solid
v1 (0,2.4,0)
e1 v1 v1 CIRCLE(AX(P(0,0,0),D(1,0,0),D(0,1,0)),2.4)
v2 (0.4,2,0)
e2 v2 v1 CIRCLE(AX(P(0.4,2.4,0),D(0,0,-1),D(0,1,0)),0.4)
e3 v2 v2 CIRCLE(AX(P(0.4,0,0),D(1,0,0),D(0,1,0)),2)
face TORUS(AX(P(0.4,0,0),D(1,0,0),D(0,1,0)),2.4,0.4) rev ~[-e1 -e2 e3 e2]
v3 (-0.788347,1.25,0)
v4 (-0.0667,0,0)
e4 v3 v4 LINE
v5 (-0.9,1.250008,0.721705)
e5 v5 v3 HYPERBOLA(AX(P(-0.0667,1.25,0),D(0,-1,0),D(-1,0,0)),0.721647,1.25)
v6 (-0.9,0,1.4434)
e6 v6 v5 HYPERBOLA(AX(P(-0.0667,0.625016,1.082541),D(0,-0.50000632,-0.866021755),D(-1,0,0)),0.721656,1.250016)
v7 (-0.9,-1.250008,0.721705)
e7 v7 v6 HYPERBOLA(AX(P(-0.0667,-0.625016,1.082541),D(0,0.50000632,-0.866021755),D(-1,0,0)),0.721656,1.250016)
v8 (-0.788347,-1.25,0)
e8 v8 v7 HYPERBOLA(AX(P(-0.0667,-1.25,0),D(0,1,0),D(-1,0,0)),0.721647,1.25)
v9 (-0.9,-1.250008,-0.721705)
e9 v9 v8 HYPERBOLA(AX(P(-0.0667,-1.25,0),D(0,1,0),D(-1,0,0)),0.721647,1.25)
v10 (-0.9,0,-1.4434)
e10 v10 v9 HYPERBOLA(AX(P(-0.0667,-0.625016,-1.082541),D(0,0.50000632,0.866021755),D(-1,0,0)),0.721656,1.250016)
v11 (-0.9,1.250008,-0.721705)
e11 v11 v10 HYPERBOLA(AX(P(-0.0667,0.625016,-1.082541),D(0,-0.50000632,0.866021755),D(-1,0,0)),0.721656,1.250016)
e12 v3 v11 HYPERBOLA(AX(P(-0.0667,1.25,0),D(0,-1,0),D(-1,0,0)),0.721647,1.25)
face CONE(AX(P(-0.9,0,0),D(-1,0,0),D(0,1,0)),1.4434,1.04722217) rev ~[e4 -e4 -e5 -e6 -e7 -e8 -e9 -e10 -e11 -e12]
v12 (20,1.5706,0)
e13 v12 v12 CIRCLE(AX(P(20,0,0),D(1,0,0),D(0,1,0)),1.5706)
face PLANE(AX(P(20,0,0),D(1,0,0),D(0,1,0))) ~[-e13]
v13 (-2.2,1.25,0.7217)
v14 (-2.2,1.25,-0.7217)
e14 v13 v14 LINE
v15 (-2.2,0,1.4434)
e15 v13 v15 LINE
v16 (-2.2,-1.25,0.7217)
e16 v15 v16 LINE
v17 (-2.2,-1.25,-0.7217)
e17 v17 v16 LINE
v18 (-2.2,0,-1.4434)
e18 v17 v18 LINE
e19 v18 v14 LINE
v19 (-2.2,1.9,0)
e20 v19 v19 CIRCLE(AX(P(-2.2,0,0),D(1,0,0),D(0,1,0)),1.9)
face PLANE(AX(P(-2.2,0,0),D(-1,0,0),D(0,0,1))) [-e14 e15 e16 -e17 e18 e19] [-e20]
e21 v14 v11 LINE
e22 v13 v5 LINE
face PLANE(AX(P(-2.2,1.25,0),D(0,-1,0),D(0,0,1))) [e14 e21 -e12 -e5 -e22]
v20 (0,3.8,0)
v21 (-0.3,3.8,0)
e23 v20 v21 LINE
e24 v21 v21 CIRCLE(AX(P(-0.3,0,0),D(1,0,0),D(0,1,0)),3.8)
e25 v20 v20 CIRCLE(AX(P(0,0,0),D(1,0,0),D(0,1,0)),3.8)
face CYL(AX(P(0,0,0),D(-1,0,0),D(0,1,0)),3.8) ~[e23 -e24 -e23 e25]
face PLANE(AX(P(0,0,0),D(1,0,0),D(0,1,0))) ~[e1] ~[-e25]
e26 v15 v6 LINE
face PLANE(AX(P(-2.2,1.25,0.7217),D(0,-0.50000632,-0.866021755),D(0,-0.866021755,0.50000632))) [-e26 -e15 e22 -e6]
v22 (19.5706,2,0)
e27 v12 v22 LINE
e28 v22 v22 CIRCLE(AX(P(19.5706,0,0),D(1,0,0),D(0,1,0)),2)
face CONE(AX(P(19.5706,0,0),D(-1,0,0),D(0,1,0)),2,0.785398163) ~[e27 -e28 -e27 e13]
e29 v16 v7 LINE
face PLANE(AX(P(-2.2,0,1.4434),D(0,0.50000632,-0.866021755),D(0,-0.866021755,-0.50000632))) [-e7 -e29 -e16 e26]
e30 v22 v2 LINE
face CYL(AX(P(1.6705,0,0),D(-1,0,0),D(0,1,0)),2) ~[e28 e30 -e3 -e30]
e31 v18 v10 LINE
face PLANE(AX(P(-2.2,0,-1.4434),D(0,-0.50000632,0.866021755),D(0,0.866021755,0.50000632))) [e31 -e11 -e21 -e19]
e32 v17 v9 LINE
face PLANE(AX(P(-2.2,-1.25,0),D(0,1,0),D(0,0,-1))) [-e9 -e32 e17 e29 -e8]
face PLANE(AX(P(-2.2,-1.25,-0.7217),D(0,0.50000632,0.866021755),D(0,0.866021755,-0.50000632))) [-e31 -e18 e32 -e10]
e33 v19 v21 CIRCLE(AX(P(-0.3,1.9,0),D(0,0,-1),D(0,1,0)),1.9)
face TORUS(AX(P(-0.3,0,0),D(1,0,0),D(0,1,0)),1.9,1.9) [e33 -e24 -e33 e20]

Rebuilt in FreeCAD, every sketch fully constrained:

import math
import FreeCAD as App
import Part
import Sketcher
from FreeCAD import Vector
Q = App.Units.Quantity


def edges_at(feature, points):
    """Names of the edges that pass closest to the given points."""
    edges = feature.Shape.Edges
    near = lambda p: min(range(len(edges)), key=lambda i: edges[i].distToShape(Part.Vertex(*p))[0])
    return sorted({f"Edge{near(p) + 1}" for p in points})

doc = App.newDocument("Part")
params = doc.addObject("Spreadsheet::Sheet", "Params")
for row, (alias, value) in enumerate([
    ("sketch1_width", "20 mm"),
    ("sketch1_width2", "2.2 mm"),
    ("sketch1_width3", "1.3 mm"),
    ("sketch1_height", "2 mm"),
    ("sketch1_height2", "1.8 mm"),
    ("revolution_angle", "360 deg"),
    ("fillet_radius", "1.9 mm"),
    ("chamfer_size", "0.4294 mm"),
    ("chamfer_size2", "0.4294 mm"),
    ("fillet2_radius", "0.4 mm"),
], start=1):
    params.set(f"A{row}", alias)
    params.set(f"B{row}", "=" + value)
    params.setAlias(f"B{row}", alias)

body = doc.addObject("PartDesign::Body", "Body")

# Sketch on XY plane
sketch1 = body.newObject("Sketcher::SketchObject", "Sketch")
sketch1.AttachmentSupport = (doc.getObject("XY_Plane"), [""])
sketch1.MapMode = "FlatFace"
sketch1.addGeometry(Part.LineSegment(Vector(-0.9, 1.4434, 0), Vector(-0.0667, 0, 0)), False)
sketch1.addGeometry(Part.LineSegment(Vector(-0.0667, 0, 0), Vector(20, 0, 0)), False)
sketch1.addGeometry(Part.LineSegment(Vector(20, 0, 0), Vector(20, 2, 0)), False)
sketch1.addGeometry(Part.LineSegment(Vector(20, 2, 0), Vector(0, 2, 0)), False)
sketch1.addGeometry(Part.LineSegment(Vector(0, 2, 0), Vector(0, 3.8, 0)), False)
sketch1.addGeometry(Part.LineSegment(Vector(0, 3.8, 0), Vector(-2.2, 3.8, 0)), False)
sketch1.addGeometry(Part.LineSegment(Vector(-2.2, 3.8, 0), Vector(-2.2, 1.4434, 0)), False)
sketch1.addGeometry(Part.LineSegment(Vector(-2.2, 1.4434, 0), Vector(-0.9, 1.4434, 0)), False)
sketch1.addConstraint(Sketcher.Constraint("Coincident", 0, 2, 1, 1))
sketch1.addConstraint(Sketcher.Constraint("Coincident", 1, 2, 2, 1))
sketch1.addConstraint(Sketcher.Constraint("Coincident", 2, 2, 3, 1))
sketch1.addConstraint(Sketcher.Constraint("Coincident", 3, 2, 4, 1))
sketch1.addConstraint(Sketcher.Constraint("Coincident", 4, 2, 5, 1))
sketch1.addConstraint(Sketcher.Constraint("Coincident", 5, 2, 6, 1))
sketch1.addConstraint(Sketcher.Constraint("Coincident", 6, 2, 7, 1))
sketch1.addConstraint(Sketcher.Constraint("Coincident", 7, 2, 0, 1))
sketch1.addConstraint(Sketcher.Constraint("Horizontal", 1))
sketch1.addConstraint(Sketcher.Constraint("Vertical", 2))
sketch1.addConstraint(Sketcher.Constraint("Horizontal", 3))
sketch1.addConstraint(Sketcher.Constraint("Vertical", 4))
sketch1.addConstraint(Sketcher.Constraint("Horizontal", 5))
sketch1.addConstraint(Sketcher.Constraint("Vertical", 6))
sketch1.addConstraint(Sketcher.Constraint("Horizontal", 7))
sketch1.addConstraint(Sketcher.Constraint("PointOnObject", 0, 2, -1))
sketch1.addConstraint(Sketcher.Constraint("PointOnObject", 3, 2, -2))
sketch1.addConstraint(Sketcher.Constraint("DistanceX", 3, 2, 3, 1, 20.0))
sketch1.addConstraint(Sketcher.Constraint("DistanceX", 5, 2, 5, 1, 2.2))
sketch1.addConstraint(Sketcher.Constraint("DistanceX", 7, 1, 7, 2, 1.3))
sketch1.addConstraint(Sketcher.Constraint("DistanceY", 2, 1, 2, 2, 2.0))
sketch1.addConstraint(Sketcher.Constraint("DistanceY", 4, 1, 4, 2, 1.8))
sketch1.addConstraint(Sketcher.Constraint("DistanceX", 1, 1, 1, 2, 20.0667))
sketch1.addConstraint(Sketcher.Constraint("DistanceY", 6, 2, 6, 1, 2.3566))
sketch1.setExpression("Constraints[17]", "Params.sketch1_width")
sketch1.setExpression("Constraints[18]", "Params.sketch1_width2")
sketch1.setExpression("Constraints[19]", "Params.sketch1_width3")
sketch1.setExpression("Constraints[20]", "Params.sketch1_height")
sketch1.setExpression("Constraints[21]", "Params.sketch1_height2")
revolution = body.newObject("PartDesign::Revolution", "Revolution")
revolution.Profile = sketch1
revolution.ReferenceAxis = (sketch1, ["H_Axis"])
revolution.setExpression("Angle", "Params.revolution_angle")

# Sketch on YZ plane
sketch2 = body.newObject("Sketcher::SketchObject", "Sketch001")
sketch2.AttachmentSupport = (doc.getObject("YZ_Plane"), [""])
sketch2.MapMode = "FlatFace"
sketch2.AttachmentOffset = App.Placement(Vector(0, 0, -2.2), App.Rotation())
sketch2.addGeometry(Part.LineSegment(Vector(1.25, 0.7217, 0), Vector(0, 1.4434, 0)), False)
sketch2.addGeometry(Part.ArcOfCircle(Part.Circle(Vector(0, 0, 0), Vector(0, 0, 1), 1.4434), math.radians(30.000418), math.radians(90)), False)
sketch2.addGeometry(Part.ArcOfCircle(Part.Circle(Vector(0, 0, 0), Vector(0, 0, 1), 1.4434), math.radians(90), math.radians(149.999582)), False)
sketch2.addGeometry(Part.LineSegment(Vector(0, 1.4434, 0), Vector(-1.25, 0.7217, 0)), False)
sketch2.addGeometry(Part.ArcOfCircle(Part.Circle(Vector(0, 0, 0), Vector(0, 0, 1), 1.4434), math.radians(-30.000418), math.radians(30.000418)), False)
sketch2.addGeometry(Part.LineSegment(Vector(1.25, 0.7217, 0), Vector(1.25, -0.7217, 0)), False)
sketch2.addGeometry(Part.LineSegment(Vector(-1.25, 0.7217, 0), Vector(-1.25, -0.7217, 0)), False)
sketch2.addGeometry(Part.ArcOfCircle(Part.Circle(Vector(0, 0, 0), Vector(0, 0, 1), 1.4434), math.radians(149.999582), math.radians(210.000418)), False)
sketch2.addGeometry(Part.LineSegment(Vector(-1.25, -0.7217, 0), Vector(0, -1.4434, 0)), False)
sketch2.addGeometry(Part.ArcOfCircle(Part.Circle(Vector(0, 0, 0), Vector(0, 0, 1), 1.4434), math.radians(-149.999582), math.radians(-90)), False)
sketch2.addGeometry(Part.ArcOfCircle(Part.Circle(Vector(0, 0, 0), Vector(0, 0, 1), 1.4434), math.radians(-90), math.radians(-30.000418)), False)
sketch2.addGeometry(Part.LineSegment(Vector(0, -1.4434, 0), Vector(1.25, -0.7217, 0)), False)
sketch2.addConstraint(Sketcher.Constraint("Coincident", 0, 1, 1, 1))
sketch2.addConstraint(Sketcher.Constraint("Coincident", 1, 2, 0, 2))
sketch2.addConstraint(Sketcher.Constraint("Coincident", 2, 1, 3, 1))
sketch2.addConstraint(Sketcher.Constraint("Coincident", 3, 2, 2, 2))
sketch2.addConstraint(Sketcher.Constraint("Coincident", 4, 1, 5, 2))
sketch2.addConstraint(Sketcher.Constraint("Coincident", 5, 1, 4, 2))
sketch2.addConstraint(Sketcher.Constraint("Coincident", 6, 1, 7, 1))
sketch2.addConstraint(Sketcher.Constraint("Coincident", 7, 2, 6, 2))
sketch2.addConstraint(Sketcher.Constraint("Coincident", 8, 1, 9, 1))
sketch2.addConstraint(Sketcher.Constraint("Coincident", 9, 2, 8, 2))
sketch2.addConstraint(Sketcher.Constraint("Coincident", 10, 1, 11, 1))
sketch2.addConstraint(Sketcher.Constraint("Coincident", 11, 2, 10, 2))
sketch2.addConstraint(Sketcher.Constraint("Vertical", 5))
sketch2.addConstraint(Sketcher.Constraint("Vertical", 6))
sketch2.addConstraint(Sketcher.Constraint("Coincident", 1, 3, -1, 1))
sketch2.addConstraint(Sketcher.Constraint("Coincident", 2, 3, -1, 1))
sketch2.addConstraint(Sketcher.Constraint("Coincident", 4, 3, -1, 1))
sketch2.addConstraint(Sketcher.Constraint("Coincident", 7, 3, -1, 1))
sketch2.addConstraint(Sketcher.Constraint("Coincident", 9, 3, -1, 1))
sketch2.addConstraint(Sketcher.Constraint("Coincident", 10, 3, -1, 1))
sketch2.addConstraint(Sketcher.Constraint("Coincident", 2, 1, 1, 2))
sketch2.addConstraint(Sketcher.Constraint("Coincident", 5, 1, 0, 1))
sketch2.addConstraint(Sketcher.Constraint("Coincident", 6, 1, 3, 2))
sketch2.addConstraint(Sketcher.Constraint("Coincident", 8, 1, 7, 2))
sketch2.addConstraint(Sketcher.Constraint("Coincident", 10, 1, 9, 2))
sketch2.addConstraint(Sketcher.Constraint("PointOnObject", 1, 2, -2))
sketch2.addConstraint(Sketcher.Constraint("PointOnObject", 9, 2, -2))
sketch2.addConstraint(Sketcher.Constraint("Parallel", 0, 8))
sketch2.addConstraint(Sketcher.Constraint("Parallel", 3, 11))
sketch2.addConstraint(Sketcher.Constraint("Angle", 0, Q("149.9996 deg")))
sketch2.addConstraint(Sketcher.Constraint("Radius", 1, 1.4434))
pad1 = body.newObject("PartDesign::Pad", "Pad")
pad1.Profile = sketch2
pad1.Type = "UpToFirst"
doc.recompute()

fillet = body.newObject("PartDesign::Fillet", "Fillet")
fillet.Base = (pad1, edges_at(pad1, [(-2.2, -3.8, 0)]))
fillet.setExpression("Radius", "Params.fillet_radius")
doc.recompute()

chamfer = body.newObject("PartDesign::Chamfer", "Chamfer")
chamfer.Base = (fillet, edges_at(fillet, [(20, -2, 0)]))
chamfer.ChamferType = "Two distances"
chamfer.setExpression("Size", "Params.chamfer_size")
chamfer.setExpression("Size2", "Params.chamfer_size2")
doc.recompute()

fillet2 = body.newObject("PartDesign::Fillet", "Fillet001")
fillet2.Base = (chamfer, edges_at(chamfer, [(0, -2, 0)]))
fillet2.setExpression("Radius", "Params.fillet2_radius")

doc.recompute()
